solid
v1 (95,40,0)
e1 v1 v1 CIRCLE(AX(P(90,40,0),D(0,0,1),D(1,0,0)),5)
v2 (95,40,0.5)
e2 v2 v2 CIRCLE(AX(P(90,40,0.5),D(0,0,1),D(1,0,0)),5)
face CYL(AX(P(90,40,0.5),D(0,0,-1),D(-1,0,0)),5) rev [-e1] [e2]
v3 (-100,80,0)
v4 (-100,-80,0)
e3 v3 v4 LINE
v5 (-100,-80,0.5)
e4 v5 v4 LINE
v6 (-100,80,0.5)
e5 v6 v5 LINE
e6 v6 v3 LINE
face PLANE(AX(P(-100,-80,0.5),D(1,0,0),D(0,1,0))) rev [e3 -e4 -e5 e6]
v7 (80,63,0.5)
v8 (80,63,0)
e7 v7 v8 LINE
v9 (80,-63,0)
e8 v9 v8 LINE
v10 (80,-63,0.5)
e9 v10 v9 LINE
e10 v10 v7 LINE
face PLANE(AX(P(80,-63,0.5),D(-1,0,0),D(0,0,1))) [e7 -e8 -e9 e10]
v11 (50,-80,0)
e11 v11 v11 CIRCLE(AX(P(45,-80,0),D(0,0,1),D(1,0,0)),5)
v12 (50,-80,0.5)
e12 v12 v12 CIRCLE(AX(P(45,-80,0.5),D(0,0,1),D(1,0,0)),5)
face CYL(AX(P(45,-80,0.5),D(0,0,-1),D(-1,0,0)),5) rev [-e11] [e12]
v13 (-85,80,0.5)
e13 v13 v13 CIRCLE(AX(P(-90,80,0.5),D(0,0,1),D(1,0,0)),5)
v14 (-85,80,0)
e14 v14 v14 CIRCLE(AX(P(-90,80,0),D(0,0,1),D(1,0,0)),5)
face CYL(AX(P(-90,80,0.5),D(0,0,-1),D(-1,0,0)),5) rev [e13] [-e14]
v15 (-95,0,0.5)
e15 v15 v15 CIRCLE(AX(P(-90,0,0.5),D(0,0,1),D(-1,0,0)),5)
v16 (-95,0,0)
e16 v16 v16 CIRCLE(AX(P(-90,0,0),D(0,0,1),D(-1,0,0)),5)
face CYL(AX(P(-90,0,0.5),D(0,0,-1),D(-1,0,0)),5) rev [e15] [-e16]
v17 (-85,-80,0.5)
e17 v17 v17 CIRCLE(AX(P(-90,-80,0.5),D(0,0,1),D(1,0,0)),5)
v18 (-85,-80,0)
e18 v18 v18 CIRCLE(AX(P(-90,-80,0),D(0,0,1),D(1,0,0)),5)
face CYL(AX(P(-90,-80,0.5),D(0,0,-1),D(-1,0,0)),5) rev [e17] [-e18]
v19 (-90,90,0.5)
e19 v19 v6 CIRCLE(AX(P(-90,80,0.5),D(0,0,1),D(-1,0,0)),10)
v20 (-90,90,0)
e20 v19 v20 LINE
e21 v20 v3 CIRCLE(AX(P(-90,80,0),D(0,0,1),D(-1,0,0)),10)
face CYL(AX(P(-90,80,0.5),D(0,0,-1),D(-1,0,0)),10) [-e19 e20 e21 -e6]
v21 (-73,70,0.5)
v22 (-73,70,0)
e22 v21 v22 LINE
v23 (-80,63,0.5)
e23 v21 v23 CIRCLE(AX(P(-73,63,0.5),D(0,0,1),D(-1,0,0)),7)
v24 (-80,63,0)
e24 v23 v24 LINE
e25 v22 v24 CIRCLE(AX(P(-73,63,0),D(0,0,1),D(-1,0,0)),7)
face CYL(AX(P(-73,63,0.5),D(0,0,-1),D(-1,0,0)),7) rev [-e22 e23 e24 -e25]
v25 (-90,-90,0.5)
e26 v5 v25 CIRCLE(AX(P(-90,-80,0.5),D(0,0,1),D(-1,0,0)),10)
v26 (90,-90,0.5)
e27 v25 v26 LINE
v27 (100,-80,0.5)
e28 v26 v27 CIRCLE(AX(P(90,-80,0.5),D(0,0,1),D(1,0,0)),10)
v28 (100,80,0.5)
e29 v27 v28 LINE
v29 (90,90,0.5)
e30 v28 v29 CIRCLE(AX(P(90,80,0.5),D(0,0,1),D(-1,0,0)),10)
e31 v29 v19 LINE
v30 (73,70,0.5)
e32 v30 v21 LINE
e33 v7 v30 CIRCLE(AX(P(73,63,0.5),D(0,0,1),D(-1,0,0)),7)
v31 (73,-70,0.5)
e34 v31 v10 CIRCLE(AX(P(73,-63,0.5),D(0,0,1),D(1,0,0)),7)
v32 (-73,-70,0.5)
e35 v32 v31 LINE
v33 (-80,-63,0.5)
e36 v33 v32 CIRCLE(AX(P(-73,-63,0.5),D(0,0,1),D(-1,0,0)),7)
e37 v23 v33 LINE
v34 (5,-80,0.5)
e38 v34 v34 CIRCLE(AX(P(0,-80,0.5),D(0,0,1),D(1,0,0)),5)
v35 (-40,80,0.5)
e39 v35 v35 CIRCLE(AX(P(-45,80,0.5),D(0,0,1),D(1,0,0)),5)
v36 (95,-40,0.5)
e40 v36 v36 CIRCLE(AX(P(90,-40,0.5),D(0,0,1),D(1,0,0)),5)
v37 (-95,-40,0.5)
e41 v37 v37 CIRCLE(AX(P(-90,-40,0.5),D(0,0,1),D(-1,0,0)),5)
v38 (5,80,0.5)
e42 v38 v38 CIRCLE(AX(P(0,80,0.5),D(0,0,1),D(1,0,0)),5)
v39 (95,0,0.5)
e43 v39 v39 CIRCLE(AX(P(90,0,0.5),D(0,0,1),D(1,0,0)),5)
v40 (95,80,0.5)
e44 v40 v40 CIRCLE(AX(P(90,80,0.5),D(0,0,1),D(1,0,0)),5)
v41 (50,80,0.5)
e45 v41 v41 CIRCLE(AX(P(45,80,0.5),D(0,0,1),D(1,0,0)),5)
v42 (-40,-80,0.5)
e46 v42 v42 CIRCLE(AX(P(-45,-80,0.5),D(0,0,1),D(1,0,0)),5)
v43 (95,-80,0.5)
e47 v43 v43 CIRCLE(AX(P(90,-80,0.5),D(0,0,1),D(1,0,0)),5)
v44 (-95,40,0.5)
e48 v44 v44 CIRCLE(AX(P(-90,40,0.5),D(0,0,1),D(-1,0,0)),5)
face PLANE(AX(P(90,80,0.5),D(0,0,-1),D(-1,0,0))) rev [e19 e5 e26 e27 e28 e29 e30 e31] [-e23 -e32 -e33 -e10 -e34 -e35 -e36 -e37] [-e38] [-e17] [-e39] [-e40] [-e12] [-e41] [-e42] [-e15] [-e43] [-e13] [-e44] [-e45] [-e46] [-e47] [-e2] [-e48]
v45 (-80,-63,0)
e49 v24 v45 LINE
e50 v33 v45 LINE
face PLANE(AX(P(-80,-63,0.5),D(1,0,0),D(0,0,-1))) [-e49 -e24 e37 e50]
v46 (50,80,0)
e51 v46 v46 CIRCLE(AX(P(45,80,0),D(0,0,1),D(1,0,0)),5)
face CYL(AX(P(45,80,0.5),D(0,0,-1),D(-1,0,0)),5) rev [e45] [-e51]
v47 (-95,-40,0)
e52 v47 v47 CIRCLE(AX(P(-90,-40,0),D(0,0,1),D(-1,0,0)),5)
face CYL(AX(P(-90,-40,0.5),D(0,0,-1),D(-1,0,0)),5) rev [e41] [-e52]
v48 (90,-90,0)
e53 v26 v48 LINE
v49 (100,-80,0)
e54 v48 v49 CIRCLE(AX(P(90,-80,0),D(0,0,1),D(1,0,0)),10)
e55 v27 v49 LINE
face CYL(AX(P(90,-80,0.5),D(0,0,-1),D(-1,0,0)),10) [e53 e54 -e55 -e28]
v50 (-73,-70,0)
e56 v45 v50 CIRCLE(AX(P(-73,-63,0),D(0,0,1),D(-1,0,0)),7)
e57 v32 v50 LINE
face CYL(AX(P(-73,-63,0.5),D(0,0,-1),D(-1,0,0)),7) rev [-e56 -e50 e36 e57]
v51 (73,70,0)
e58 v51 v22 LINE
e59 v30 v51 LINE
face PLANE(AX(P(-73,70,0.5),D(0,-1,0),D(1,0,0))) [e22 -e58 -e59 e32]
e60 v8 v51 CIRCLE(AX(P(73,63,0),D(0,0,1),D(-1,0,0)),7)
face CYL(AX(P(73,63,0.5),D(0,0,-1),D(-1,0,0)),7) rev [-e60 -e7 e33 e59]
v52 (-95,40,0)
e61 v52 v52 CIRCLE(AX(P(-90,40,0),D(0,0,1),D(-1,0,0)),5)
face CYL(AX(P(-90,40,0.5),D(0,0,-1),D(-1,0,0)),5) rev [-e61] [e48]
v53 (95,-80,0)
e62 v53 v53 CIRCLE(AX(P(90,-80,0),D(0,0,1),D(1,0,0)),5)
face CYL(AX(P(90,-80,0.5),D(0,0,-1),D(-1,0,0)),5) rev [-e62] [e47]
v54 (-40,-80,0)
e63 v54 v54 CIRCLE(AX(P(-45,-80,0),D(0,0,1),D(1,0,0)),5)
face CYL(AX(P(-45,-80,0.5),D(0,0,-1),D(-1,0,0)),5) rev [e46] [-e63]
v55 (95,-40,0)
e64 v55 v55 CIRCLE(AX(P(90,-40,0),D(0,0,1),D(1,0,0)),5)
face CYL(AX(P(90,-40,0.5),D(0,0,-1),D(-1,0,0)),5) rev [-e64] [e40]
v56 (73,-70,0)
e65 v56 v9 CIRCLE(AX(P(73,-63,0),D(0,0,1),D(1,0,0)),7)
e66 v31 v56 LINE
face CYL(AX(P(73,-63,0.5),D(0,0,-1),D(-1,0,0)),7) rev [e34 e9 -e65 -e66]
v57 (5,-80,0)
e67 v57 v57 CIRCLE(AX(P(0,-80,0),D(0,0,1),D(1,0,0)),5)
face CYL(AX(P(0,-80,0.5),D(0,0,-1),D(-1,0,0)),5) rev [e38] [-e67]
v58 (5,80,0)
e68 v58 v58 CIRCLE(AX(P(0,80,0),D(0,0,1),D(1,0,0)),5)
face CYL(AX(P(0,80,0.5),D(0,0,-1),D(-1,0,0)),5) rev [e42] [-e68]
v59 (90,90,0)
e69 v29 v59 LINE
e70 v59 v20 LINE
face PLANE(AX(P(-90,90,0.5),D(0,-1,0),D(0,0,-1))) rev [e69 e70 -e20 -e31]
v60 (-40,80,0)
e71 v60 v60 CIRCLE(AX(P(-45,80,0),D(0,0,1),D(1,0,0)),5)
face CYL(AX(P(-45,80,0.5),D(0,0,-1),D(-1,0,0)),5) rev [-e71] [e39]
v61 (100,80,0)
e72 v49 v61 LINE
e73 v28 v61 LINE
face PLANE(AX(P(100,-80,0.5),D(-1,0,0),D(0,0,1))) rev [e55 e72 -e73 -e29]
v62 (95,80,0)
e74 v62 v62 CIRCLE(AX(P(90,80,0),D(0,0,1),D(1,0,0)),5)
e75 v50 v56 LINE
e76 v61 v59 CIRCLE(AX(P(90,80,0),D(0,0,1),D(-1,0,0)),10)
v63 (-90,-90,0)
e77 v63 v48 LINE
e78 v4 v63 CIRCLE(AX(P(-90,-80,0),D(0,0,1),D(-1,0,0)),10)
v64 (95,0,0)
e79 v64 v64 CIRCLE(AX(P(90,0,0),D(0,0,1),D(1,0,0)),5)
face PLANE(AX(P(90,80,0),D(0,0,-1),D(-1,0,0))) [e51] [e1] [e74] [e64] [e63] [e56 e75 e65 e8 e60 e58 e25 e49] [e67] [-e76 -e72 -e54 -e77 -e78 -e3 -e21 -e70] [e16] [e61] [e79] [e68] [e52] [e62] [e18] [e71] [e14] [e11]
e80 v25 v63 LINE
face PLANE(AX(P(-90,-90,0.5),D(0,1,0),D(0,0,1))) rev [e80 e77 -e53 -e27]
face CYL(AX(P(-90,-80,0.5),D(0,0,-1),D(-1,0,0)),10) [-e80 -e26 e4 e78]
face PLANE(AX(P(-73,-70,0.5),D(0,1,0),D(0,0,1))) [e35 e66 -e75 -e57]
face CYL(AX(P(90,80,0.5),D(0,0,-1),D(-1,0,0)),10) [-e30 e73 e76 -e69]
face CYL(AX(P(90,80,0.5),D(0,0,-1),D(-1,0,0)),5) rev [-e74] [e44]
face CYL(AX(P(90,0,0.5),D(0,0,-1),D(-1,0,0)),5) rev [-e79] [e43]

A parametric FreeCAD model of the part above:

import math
import FreeCAD as App
import Part
import Sketcher

doc = App.newDocument("Part")
body = doc.addObject("PartDesign::Body", "Body")

sketch1 = doc.addObject("Sketcher::SketchObject", "Sketch")
body.addObject(sketch1)
sketch1.AttachmentSupport = (doc.XY_Plane, [""])
sketch1.MapMode = "FlatFace"
sketch1.addGeometry([
    Part.LineSegment(App.Vector(-90, -90, 0), App.Vector(90, -90, 0)),
    Part.ArcOfCircle(Part.Circle(App.Vector(90, -80, 0), App.Vector(0, 0, 1), 10), math.radians(-90), math.radians(0)),
    Part.LineSegment(App.Vector(100, -80, 0), App.Vector(100, 80, 0)),
    Part.ArcOfCircle(Part.Circle(App.Vector(90, 80, 0), App.Vector(0, 0, 1), 10), math.radians(0), math.radians(90)),
    Part.LineSegment(App.Vector(90, 90, 0), App.Vector(-90, 90, 0)),
    Part.ArcOfCircle(Part.Circle(App.Vector(-90, 80, 0), App.Vector(0, 0, 1), 10), math.radians(90), math.radians(180)),
    Part.LineSegment(App.Vector(-100, 80, 0), App.Vector(-100, -80, 0)),
    Part.ArcOfCircle(Part.Circle(App.Vector(-90, -80, 0), App.Vector(0, 0, 1), 10), math.radians(180), math.radians(270)),
    Part.Circle(App.Vector(-90, -80, 0), App.Vector(0, 0, 1), 5),
    Part.Circle(App.Vector(-45, -80, 0), App.Vector(0, 0, 1), 5),
    Part.Circle(App.Vector(-90, -40, 0), App.Vector(0, 0, 1), 5),
    Part.Circle(App.Vector(0, -80, 0), App.Vector(0, 0, 1), 5),
    Part.Circle(App.Vector(45, -80, 0), App.Vector(0, 0, 1), 5),
    Part.Circle(App.Vector(90, -80, 0), App.Vector(0, 0, 1), 5),
    Part.Circle(App.Vector(90, -40, 0), App.Vector(0, 0, 1), 5),
    Part.Circle(App.Vector(-90, 0, 0), App.Vector(0, 0, 1), 5),
    Part.Circle(App.Vector(-90, 40, 0), App.Vector(0, 0, 1), 5),
    Part.Circle(App.Vector(-90, 80, 0), App.Vector(0, 0, 1), 5),
    Part.Circle(App.Vector(-45, 80, 0), App.Vector(0, 0, 1), 5),
    Part.LineSegment(App.Vector(73, -70, 0), App.Vector(-73, -70, 0)),
    Part.ArcOfCircle(Part.Circle(App.Vector(-73, -63, 0), App.Vector(0, 0, 1), 7), math.radians(-180), math.radians(-90)),
    Part.LineSegment(App.Vector(-80, -63, 0), App.Vector(-80, 63, 0)),
    Part.ArcOfCircle(Part.Circle(App.Vector(-73, 63, 0), App.Vector(0, 0, 1), 7), math.radians(90), math.radians(180)),
    Part.LineSegment(App.Vector(-73, 70, 0), App.Vector(73, 70, 0)),
    Part.ArcOfCircle(Part.Circle(App.Vector(73, 63, 0), App.Vector(0, 0, 1), 7), math.radians(0), math.radians(90)),
    Part.LineSegment(App.Vector(80, 63, 0), App.Vector(80, -63, 0)),
    Part.ArcOfCircle(Part.Circle(App.Vector(73, -63, 0), App.Vector(0, 0, 1), 7), math.radians(-90), math.radians(0)),
    Part.Circle(App.Vector(90, 0, 0), App.Vector(0, 0, 1), 5),
    Part.Circle(App.Vector(90, 40, 0), App.Vector(0, 0, 1), 5),
    Part.Circle(App.Vector(0, 80, 0), App.Vector(0, 0, 1), 5),
    Part.Circle(App.Vector(45, 80, 0), App.Vector(0, 0, 1), 5),
    Part.Circle(App.Vector(90, 80, 0), App.Vector(0, 0, 1), 5),
], False)
sketch1.addConstraint([
    Sketcher.Constraint("Tangent", 0, 2, 1, 1),
    Sketcher.Constraint("Tangent", 1, 2, 2, 1),
    Sketcher.Constraint("Tangent", 2, 2, 3, 1),
    Sketcher.Constraint("Tangent", 3, 2, 4, 1),
    Sketcher.Constraint("Tangent", 4, 2, 5, 1),
    Sketcher.Constraint("Tangent", 5, 2, 6, 1),
    Sketcher.Constraint("Tangent", 6, 2, 7, 1),
    Sketcher.Constraint("Tangent", 7, 2, 0, 1),
    Sketcher.Constraint("Tangent", 19, 2, 20, 2),
    Sketcher.Constraint("Tangent", 20, 1, 21, 1),
    Sketcher.Constraint("Tangent", 21, 2, 22, 2),
    Sketcher.Constraint("Tangent", 22, 1, 23, 1),
    Sketcher.Constraint("Tangent", 23, 2, 24, 2),
    Sketcher.Constraint("Tangent", 24, 1, 25, 1),
    Sketcher.Constraint("Tangent", 25, 2, 26, 2),
    Sketcher.Constraint("Tangent", 26, 1, 19, 1),
    Sketcher.Constraint("Horizontal", 0),
    Sketcher.Constraint("Vertical", 2),
    Sketcher.Constraint("Horizontal", 4),
    Sketcher.Constraint("Vertical", 6),
    Sketcher.Constraint("Horizontal", 19),
    Sketcher.Constraint("Vertical", 21),
    Sketcher.Constraint("Horizontal", 23),
    Sketcher.Constraint("Vertical", 25),
    Sketcher.Constraint("Coincident", 8, 3, 7, 3),
    Sketcher.Constraint("Coincident", 13, 3, 1, 3),
    Sketcher.Constraint("Coincident", 17, 3, 5, 3),
    Sketcher.Constraint("Coincident", 31, 3, 3, 3),
    Sketcher.Constraint("Equal", 1, 3),
    Sketcher.Constraint("Equal", 3, 5),
    Sketcher.Constraint("Equal", 5, 7),
    Sketcher.Constraint("Equal", 8, 9),
    Sketcher.Constraint("Equal", 9, 10),
    Sketcher.Constraint("Equal", 10, 11),
    Sketcher.Constraint("Equal", 11, 12),
    Sketcher.Constraint("Equal", 12, 13),
    Sketcher.Constraint("Equal", 13, 14),
    Sketcher.Constraint("Equal", 14, 15),
    Sketcher.Constraint("Equal", 15, 16),
    Sketcher.Constraint("Equal", 16, 17),
    Sketcher.Constraint("Equal", 17, 18),
    Sketcher.Constraint("Equal", 20, 22),
    Sketcher.Constraint("Equal", 22, 24),
    Sketcher.Constraint("Equal", 24, 26),
    Sketcher.Constraint("Equal", 18, 27),
    Sketcher.Constraint("Equal", 27, 28),
    Sketcher.Constraint("Equal", 28, 29),
    Sketcher.Constraint("Equal", 29, 30),
    Sketcher.Constraint("Equal", 30, 31),
    Sketcher.Constraint("Symmetric", 1, 3, 5, 3, -1, 1),
    Sketcher.Constraint("Symmetric", 14, 3, 16, 3, -1, 1),
    Sketcher.Constraint("Symmetric", 12, 3, 18, 3, -1, 1),
    Sketcher.Constraint("Symmetric", 20, 3, 24, 3, -1, 1),
    Sketcher.Constraint("Symmetric", 15, 3, 27, 3, -1, 1),
    Sketcher.Constraint("Symmetric", 10, 3, 28, 3, -1, 1),
    Sketcher.Constraint("Symmetric", 11, 3, 29, 3, -1, 1),
    Sketcher.Constraint("Symmetric", 9, 3, 30, 3, -1, 1),
    Sketcher.Constraint("Symmetric", 9, 3, 12, 3, -2),
    Sketcher.Constraint("Symmetric", 10, 3, 14, 3, -2),
    Sketcher.Constraint("PointOnObject", 11, 3, -2),
    Sketcher.Constraint("PointOnObject", 15, 3, -1),
    Sketcher.Constraint("Horizontal", 8, 3, 9, 3),
    Sketcher.Constraint("Horizontal", 9, 3, 11, 3),
    Sketcher.Constraint("Vertical", 8, 3, 10, 3),
    Sketcher.Constraint("Vertical", 10, 3, 15, 3),
    Sketcher.Constraint("Diameter", 8, 10.0),
    Sketcher.Constraint("Radius", 1, 10.0),
    Sketcher.Constraint("Radius", 20, 7.0),
    Sketcher.Constraint("DistanceX", 0, 1, 0, 2, 180.0),
    Sketcher.Constraint("DistanceX", 19, 2, 19, 1, 146.0),
    Sketcher.Constraint("DistanceY", 2, 1, 2, 2, 160.0),
    Sketcher.Constraint("DistanceY", 21, 1, 21, 2, 126.0),
    Sketcher.Constraint("DistanceX", 9, 3, -1, 1, 45.0),
    Sketcher.Constraint("DistanceY", 10, 3, -1, 1, 40.0),
])
pad1 = doc.addObject("PartDesign::Pad", "Pad")
body.addObject(pad1)
pad1.Profile = sketch1
pad1.Length = 0.5

doc.recompute()
